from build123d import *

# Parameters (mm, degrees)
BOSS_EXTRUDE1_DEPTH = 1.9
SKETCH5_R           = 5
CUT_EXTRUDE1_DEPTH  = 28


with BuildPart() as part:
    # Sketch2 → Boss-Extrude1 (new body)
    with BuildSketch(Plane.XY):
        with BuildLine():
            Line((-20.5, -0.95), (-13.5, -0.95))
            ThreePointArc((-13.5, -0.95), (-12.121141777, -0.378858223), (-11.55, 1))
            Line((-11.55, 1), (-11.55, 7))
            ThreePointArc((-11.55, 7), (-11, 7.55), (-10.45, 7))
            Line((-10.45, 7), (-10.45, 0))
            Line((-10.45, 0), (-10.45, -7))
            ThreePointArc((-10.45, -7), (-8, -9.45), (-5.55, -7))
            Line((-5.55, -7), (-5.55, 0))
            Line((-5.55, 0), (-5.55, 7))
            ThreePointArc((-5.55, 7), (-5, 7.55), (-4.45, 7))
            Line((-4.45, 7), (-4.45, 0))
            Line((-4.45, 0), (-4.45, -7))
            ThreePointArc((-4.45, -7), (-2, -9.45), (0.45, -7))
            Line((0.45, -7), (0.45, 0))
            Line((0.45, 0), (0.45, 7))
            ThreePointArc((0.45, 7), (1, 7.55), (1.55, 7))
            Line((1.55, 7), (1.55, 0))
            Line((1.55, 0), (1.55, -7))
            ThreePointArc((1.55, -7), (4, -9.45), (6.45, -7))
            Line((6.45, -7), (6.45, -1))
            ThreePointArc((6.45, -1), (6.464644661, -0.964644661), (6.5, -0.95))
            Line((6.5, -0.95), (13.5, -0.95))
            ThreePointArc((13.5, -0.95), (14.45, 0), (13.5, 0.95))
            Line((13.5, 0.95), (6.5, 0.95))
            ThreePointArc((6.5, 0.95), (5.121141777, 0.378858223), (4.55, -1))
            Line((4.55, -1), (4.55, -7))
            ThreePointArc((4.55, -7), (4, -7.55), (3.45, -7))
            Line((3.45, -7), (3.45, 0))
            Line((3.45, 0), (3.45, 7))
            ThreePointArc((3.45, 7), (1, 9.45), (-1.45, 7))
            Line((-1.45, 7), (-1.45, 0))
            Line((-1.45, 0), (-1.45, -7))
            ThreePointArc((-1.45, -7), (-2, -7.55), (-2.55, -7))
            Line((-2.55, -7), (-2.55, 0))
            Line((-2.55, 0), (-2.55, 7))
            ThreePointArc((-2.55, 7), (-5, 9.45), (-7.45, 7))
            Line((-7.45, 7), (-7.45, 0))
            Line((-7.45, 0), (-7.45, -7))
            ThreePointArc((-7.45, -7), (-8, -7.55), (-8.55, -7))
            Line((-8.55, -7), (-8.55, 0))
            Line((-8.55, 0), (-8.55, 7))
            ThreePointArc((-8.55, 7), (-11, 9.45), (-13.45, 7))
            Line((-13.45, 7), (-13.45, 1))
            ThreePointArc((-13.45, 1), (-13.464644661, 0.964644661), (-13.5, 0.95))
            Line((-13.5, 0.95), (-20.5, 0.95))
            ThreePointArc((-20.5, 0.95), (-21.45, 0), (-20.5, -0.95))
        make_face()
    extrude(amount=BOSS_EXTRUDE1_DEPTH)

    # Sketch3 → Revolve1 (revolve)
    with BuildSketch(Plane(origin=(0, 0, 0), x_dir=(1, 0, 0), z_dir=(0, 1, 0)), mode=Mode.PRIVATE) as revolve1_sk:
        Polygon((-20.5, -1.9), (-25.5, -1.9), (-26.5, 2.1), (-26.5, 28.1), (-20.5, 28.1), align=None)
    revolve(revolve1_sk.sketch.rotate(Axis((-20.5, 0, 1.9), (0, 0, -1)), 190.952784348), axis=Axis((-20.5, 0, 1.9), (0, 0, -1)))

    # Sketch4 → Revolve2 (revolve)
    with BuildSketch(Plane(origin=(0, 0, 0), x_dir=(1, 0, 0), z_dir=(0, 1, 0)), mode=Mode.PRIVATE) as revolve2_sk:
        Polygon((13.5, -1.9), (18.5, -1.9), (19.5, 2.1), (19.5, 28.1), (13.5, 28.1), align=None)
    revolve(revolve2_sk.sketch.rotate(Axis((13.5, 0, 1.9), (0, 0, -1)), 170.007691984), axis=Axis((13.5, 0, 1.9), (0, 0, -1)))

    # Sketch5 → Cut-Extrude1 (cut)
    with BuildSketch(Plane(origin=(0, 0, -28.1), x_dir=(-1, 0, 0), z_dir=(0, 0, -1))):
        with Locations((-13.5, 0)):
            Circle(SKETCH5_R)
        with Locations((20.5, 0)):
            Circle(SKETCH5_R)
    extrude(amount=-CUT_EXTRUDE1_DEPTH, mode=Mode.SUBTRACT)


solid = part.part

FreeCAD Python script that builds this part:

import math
import FreeCAD as App
import Part
import Sketcher

V = App.Vector


def add_polygon(sketch, points):
    """Adds a closed chain of lines whose ends are joined by coincident constraints."""
    first, n = sketch.GeometryCount, len(points)
    for a, b in zip(points, points[1:] + points[:1]):
        sketch.addGeometry(Part.LineSegment(App.Vector(*a, 0), App.Vector(*b, 0)), False)
    for i in range(n):
        sketch.addConstraint(Sketcher.Constraint("Coincident", first + i, 2, first + (i + 1) % n, 1))

doc = App.newDocument("Part")
body = doc.addObject("PartDesign::Body", "Body")

# Sketch on XY plane
sketch1 = doc.addObject("Sketcher::SketchObject", "Sketch")
body.addObject(sketch1)
sketch1.AttachmentSupport = (doc.XY_Plane, [""])
sketch1.MapMode = "FlatFace"
sketch1.addGeometry(Part.LineSegment(V(-20.5, -0.95, 0), V(-13.5, -0.95, 0)), False)
sketch1.addGeometry(Part.ArcOfCircle(Part.Circle(V(-13.5, 1, 0), V(0, 0, 1), 1.95), math.radians(-90), math.radians(0)), False)
sketch1.addGeometry(Part.LineSegment(V(-11.55, 1, 0), V(-11.55, 7, 0)), False)
sketch1.addGeometry(Part.ArcOfCircle(Part.Circle(V(-11, 7, 0), V(0, 0, 1), 0.55), math.radians(0), math.radians(180)), False)
sketch1.addGeometry(Part.LineSegment(V(-10.45, 7, 0), V(-10.45, -7, 0)), False)
sketch1.addGeometry(Part.ArcOfCircle(Part.Circle(V(-8, -7, 0), V(0, 0, 1), 2.45), math.radians(180), math.radians(360)), False)
sketch1.addGeometry(Part.LineSegment(V(-5.55, -7, 0), V(-5.55, 7, 0)), False)
sketch1.addGeometry(Part.ArcOfCircle(Part.Circle(V(-5, 7, 0), V(0, 0, 1), 0.55), math.radians(0), math.radians(180)), False)
sketch1.addGeometry(Part.LineSegment(V(-4.45, 7, 0), V(-4.45, -7, 0)), False)
sketch1.addGeometry(Part.ArcOfCircle(Part.Circle(V(-2, -7, 0), V(0, 0, 1), 2.45), math.radians(180), math.radians(360)), False)
sketch1.addGeometry(Part.LineSegment(V(0.45, -7, 0), V(0.45, 7, 0)), False)
sketch1.addGeometry(Part.ArcOfCircle(Part.Circle(V(1, 7, 0), V(0, 0, 1), 0.55), math.radians(0), math.radians(180)), False)
sketch1.addGeometry(Part.LineSegment(V(1.55, 7, 0), V(1.55, -7, 0)), False)
sketch1.addGeometry(Part.ArcOfCircle(Part.Circle(V(4, -7, 0), V(0, 0, 1), 2.45), math.radians(180), math.radians(360)), False)
sketch1.addGeometry(Part.LineSegment(V(6.45, -7, 0), V(6.45, -1, 0)), False)
sketch1.addGeometry(Part.ArcOfCircle(Part.Circle(V(6.5, -1, 0), V(0, 0, 1), 0.05), math.radians(90), math.radians(180)), False)
sketch1.addGeometry(Part.LineSegment(V(6.5, -0.95, 0), V(13.5, -0.95, 0)), False)
sketch1.addGeometry(Part.ArcOfCircle(Part.Circle(V(13.5, 0, 0), V(0, 0, 1), 0.95), math.radians(-90), math.radians(90)), False)
sketch1.addGeometry(Part.LineSegment(V(13.5, 0.95, 0), V(6.5, 0.95, 0)), False)
sketch1.addGeometry(Part.ArcOfCircle(Part.Circle(V(6.5, -1, 0), V(0, 0, 1), 1.95), math.radians(90), math.radians(180)), False)
sketch1.addGeometry(Part.LineSegment(V(4.55, -1, 0), V(4.55, -7, 0)), False)
sketch1.addGeometry(Part.ArcOfCircle(Part.Circle(V(4, -7, 0), V(0, 0, 1), 0.55), math.radians(180), math.radians(360)), False)
sketch1.addGeometry(Part.LineSegment(V(3.45, -7, 0), V(3.45, 7, 0)), False)
sketch1.addGeometry(Part.ArcOfCircle(Part.Circle(V(1, 7, 0), V(0, 0, 1), 2.45), math.radians(0), math.radians(180)), False)
sketch1.addGeometry(Part.LineSegment(V(-1.45, 7, 0), V(-1.45, -7, 0)), False)
sketch1.addGeometry(Part.ArcOfCircle(Part.Circle(V(-2, -7, 0), V(0, 0, 1), 0.55), math.radians(180), math.radians(360)), False)
sketch1.addGeometry(Part.LineSegment(V(-2.55, -7, 0), V(-2.55, 7, 0)), False)
sketch1.addGeometry(Part.ArcOfCircle(Part.Circle(V(-5, 7, 0), V(0, 0, 1), 2.45), math.radians(0), math.radians(180)), False)
sketch1.addGeometry(Part.LineSegment(V(-7.45, 7, 0), V(-7.45, -7, 0)), False)
sketch1.addGeometry(Part.ArcOfCircle(Part.Circle(V(-8, -7, 0), V(0, 0, 1), 0.55), math.radians(180), math.radians(360)), False)
sketch1.addGeometry(Part.LineSegment(V(-8.55, -7, 0), V(-8.55, 7, 0)), False)
sketch1.addGeometry(Part.ArcOfCircle(Part.Circle(V(-11, 7, 0), V(0, 0, 1), 2.45), math.radians(0), math.radians(180)), False)
sketch1.addGeometry(Part.LineSegment(V(-13.45, 7, 0), V(-13.45, 1, 0)), False)
sketch1.addGeometry(Part.ArcOfCircle(Part.Circle(V(-13.5, 1, 0), V(0, 0, 1), 0.05), math.radians(-90), math.radians(0)), False)
sketch1.addGeometry(Part.LineSegment(V(-13.5, 0.95, 0), V(-20.5, 0.95, 0)), False)
sketch1.addGeometry(Part.ArcOfCircle(Part.Circle(V(-20.5, 0, 0), V(0, 0, 1), 0.95), math.radians(90), math.radians(270)), False)
sketch1.addConstraint(Sketcher.Constraint("Tangent", 0, 2, 1, 1))
sketch1.addConstraint(Sketcher.Constraint("Tangent", 1, 2, 2, 1))
sketch1.addConstraint(Sketcher.Constraint("Tangent", 2, 2, 3, 2))
sketch1.addConstraint(Sketcher.Constraint("Tangent", 3, 1, 4, 1))
sketch1.addConstraint(Sketcher.Constraint("Tangent", 4, 2, 5, 1))
sketch1.addConstraint(Sketcher.Constraint("Tangent", 5, 2, 6, 1))
sketch1.addConstraint(Sketcher.Constraint("Tangent", 6, 2, 7, 2))
sketch1.addConstraint(Sketcher.Constraint("Tangent", 7, 1, 8, 1))
sketch1.addConstraint(Sketcher.Constraint("Tangent", 8, 2, 9, 1))
sketch1.addConstraint(Sketcher.Constraint("Tangent", 9, 2, 10, 1))
sketch1.addConstraint(Sketcher.Constraint("Tangent", 10, 2, 11, 2))
sketch1.addConstraint(Sketcher.Constraint("Tangent", 11, 1, 12, 1))
sketch1.addConstraint(Sketcher.Constraint("Tangent", 12, 2, 13, 1))
sketch1.addConstraint(Sketcher.Constraint("Tangent", 13, 2, 14, 1))
sketch1.addConstraint(Sketcher.Constraint("Tangent", 14, 2, 15, 2))
sketch1.addConstraint(Sketcher.Constraint("Tangent", 15, 1, 16, 1))
sketch1.addConstraint(Sketcher.Constraint("Tangent", 16, 2, 17, 1))
sketch1.addConstraint(Sketcher.Constraint("Tangent", 17, 2, 18, 1))
sketch1.addConstraint(Sketcher.Constraint("Tangent", 18, 2, 19, 1))
sketch1.addConstraint(Sketcher.Constraint("Tangent", 19, 2, 20, 1))
sketch1.addConstraint(Sketcher.Constraint("Tangent", 20, 2, 21, 2))
sketch1.addConstraint(Sketcher.Constraint("Tangent", 21, 1, 22, 1))
sketch1.addConstraint(Sketcher.Constraint("Tangent", 22, 2, 23, 1))
sketch1.addConstraint(Sketcher.Constraint("Tangent", 23, 2, 24, 1))
sketch1.addConstraint(Sketcher.Constraint("Tangent", 24, 2, 25, 2))
sketch1.addConstraint(Sketcher.Constraint("Tangent", 25, 1, 26, 1))
sketch1.addConstraint(Sketcher.Constraint("Tangent", 26, 2, 27, 1))
sketch1.addConstraint(Sketcher.Constraint("Tangent", 27, 2, 28, 1))
sketch1.addConstraint(Sketcher.Constraint("Tangent", 28, 2, 29, 2))
sketch1.addConstraint(Sketcher.Constraint("Tangent", 29, 1, 30, 1))
sketch1.addConstraint(Sketcher.Constraint("Tangent", 30, 2, 31, 1))
sketch1.addConstraint(Sketcher.Constraint("Tangent", 31, 2, 32, 1))
sketch1.addConstraint(Sketcher.Constraint("Tangent", 32, 2, 33, 2))
sketch1.addConstraint(Sketcher.Constraint("Tangent", 33, 1, 34, 1))
sketch1.addConstraint(Sketcher.Constraint("Tangent", 34, 2, 35, 1))
sketch1.addConstraint(Sketcher.Constraint("Tangent", 35, 2, 0, 1))
sketch1.addConstraint(Sketcher.Constraint("Horizontal", 0))
sketch1.addConstraint(Sketcher.Constraint("Vertical", 2))
sketch1.addConstraint(Sketcher.Constraint("Vertical", 4))
sketch1.addConstraint(Sketcher.Constraint("Vertical", 6))
sketch1.addConstraint(Sketcher.Constraint("Vertical", 8))
sketch1.addConstraint(Sketcher.Constraint("Vertical", 10))
sketch1.addConstraint(Sketcher.Constraint("Vertical", 12))
sketch1.addConstraint(Sketcher.Constraint("Vertical", 14))
sketch1.addConstraint(Sketcher.Constraint("Horizontal", 16))
sketch1.addConstraint(Sketcher.Constraint("Horizontal", 18))
sketch1.addConstraint(Sketcher.Constraint("Vertical", 20))
sketch1.addConstraint(Sketcher.Constraint("Vertical", 22))
sketch1.addConstraint(Sketcher.Constraint("Vertical", 24))
sketch1.addConstraint(Sketcher.Constraint("Vertical", 26))
sketch1.addConstraint(Sketcher.Constraint("Vertical", 28))
sketch1.addConstraint(Sketcher.Constraint("Vertical", 30))
sketch1.addConstraint(Sketcher.Constraint("Vertical", 32))
sketch1.addConstraint(Sketcher.Constraint("Horizontal", 34))
sketch1.addConstraint(Sketcher.Constraint("Coincident", 19, 3, 15, 3))
sketch1.addConstraint(Sketcher.Constraint("Coincident", 21, 3, 13, 3))
sketch1.addConstraint(Sketcher.Constraint("Coincident", 23, 3, 11, 3))
sketch1.addConstraint(Sketcher.Constraint("Coincident", 25, 3, 9, 3))
sketch1.addConstraint(Sketcher.Constraint("Coincident", 27, 3, 7, 3))
sketch1.addConstraint(Sketcher.Constraint("Coincident", 29, 3, 5, 3))
sketch1.addConstraint(Sketcher.Constraint("Coincident", 31, 3, 3, 3))
sketch1.addConstraint(Sketcher.Constraint("Coincident", 33, 3, 1, 3))
sketch1.addConstraint(Sketcher.Constraint("Equal", 3, 7))
sketch1.addConstraint(Sketcher.Constraint("Equal", 5, 9))
sketch1.addConstraint(Sketcher.Constraint("Equal", 7, 11))
sketch1.addConstraint(Sketcher.Constraint("Equal", 9, 13))
sketch1.addConstraint(Sketcher.Constraint("Equal", 1, 19))
sketch1.addConstraint(Sketcher.Constraint("Equal", 11, 21))
sketch1.addConstraint(Sketcher.Constraint("Symmetric", 0, 2, 17, 2, -1, 1))
sketch1.addConstraint(Sketcher.Constraint("PointOnObject", 17, 3, -1))
sketch1.addConstraint(Sketcher.Constraint("Horizontal", 3, 3, 7, 3))
sketch1.addConstraint(Sketcher.Constraint("Horizontal", 5, 3, 9, 3))
sketch1.addConstraint(Sketcher.Constraint("Horizontal", 7, 3, 11, 3))
sketch1.addConstraint(Sketcher.Constraint("Horizontal", 9, 3, 13, 3))
sketch1.addConstraint(Sketcher.Constraint("Equal", 0, 16))
sketch1.addConstraint(Sketcher.Constraint("Equal", 2, 14))
sketch1.addConstraint(Sketcher.Constraint("DistanceX", 0, 1, 0, 2, 7.0))
sketch1.addConstraint(Sketcher.Constraint("DistanceY", 2, 1, 2, 2, 6.0))
sketch1.addConstraint(Sketcher.Constraint("DistanceY", 4, 2, 4, 1, 14.0))
sketch1.addConstraint(Sketcher.Constraint("Radius", 1, 1.95))
sketch1.addConstraint(Sketcher.Constraint("Radius", 3, 0.55))
pad1 = doc.addObject("PartDesign::Pad", "Pad")
body.addObject(pad1)
pad1.Profile = sketch1
pad1.Length = 1.9

# Sketch on XZ plane
sketch2 = doc.addObject("Sketcher::SketchObject", "Sketch001")
body.addObject(sketch2)
sketch2.AttachmentSupport = (doc.XZ_Plane, [""])
sketch2.MapMode = "FlatFace"
add_polygon(sketch2, [(-25.5, 1.9), (-20.5, 1.9), (-20.5, -28.1), (-26.5, -28.1), (-26.5, -2.1)])  # lines 0-4
sketch2.addGeometry(Part.LineSegment(V(-20.5, 1.9, 0), V(-20.5, -28.1, 0)), True)  # axis
sketch2.addConstraint(Sketcher.Constraint("Horizontal", 0))
sketch2.addConstraint(Sketcher.Constraint("Vertical", 1))
sketch2.addConstraint(Sketcher.Constraint("Horizontal", 2))
sketch2.addConstraint(Sketcher.Constraint("Vertical", 3))
sketch2.addConstraint(Sketcher.Constraint("Vertical", 5))
sketch2.addConstraint(Sketcher.Constraint("Coincident", 5, 1, 0, 2))
sketch2.addConstraint(Sketcher.Constraint("Horizontal", 2, 2, 5, 2))
sketch2.addConstraint(Sketcher.Constraint("DistanceX", 0, 1, 0, 2, 5.0))
sketch2.addConstraint(Sketcher.Constraint("DistanceX", 2, 2, 2, 1, 6.0))
sketch2.addConstraint(Sketcher.Constraint("DistanceY", 1, 2, 1, 1, 30.0))
sketch2.addConstraint(Sketcher.Constraint("DistanceY", 3, 1, 3, 2, 26.0))
sketch2.addConstraint(Sketcher.Constraint("DistanceX", 0, 2, -1, 1, 20.5))
sketch2.addConstraint(Sketcher.Constraint("DistanceY", -1, 1, 0, 2, 1.9))
revolution = doc.addObject("PartDesign::Revolution", "Revolution")
body.addObject(revolution)
revolution.Profile = sketch2
revolution.ReferenceAxis = (sketch2, ["Axis0"])
revolution.Angle = 360

# Sketch on XZ plane
sketch3 = doc.addObject("Sketcher::SketchObject", "Sketch002")
body.addObject(sketch3)
sketch3.AttachmentSupport = (doc.XZ_Plane, [""])
sketch3.MapMode = "FlatFace"
add_polygon(sketch3, [(13.5, 1.9), (18.5, 1.9), (19.5, -2.1), (19.5, -28.1), (13.5, -28.1)])  # lines 0-4
sketch3.addGeometry(Part.LineSegment(V(13.5, 1.9, 0), V(13.5, -28.1, 0)), True)  # axis
sketch3.addConstraint(Sketcher.Constraint("Horizontal", 0))
sketch3.addConstraint(Sketcher.Constraint("Vertical", 2))
sketch3.addConstraint(Sketcher.Constraint("Horizontal", 3))
sketch3.addConstraint(Sketcher.Constraint("Vertical", 4))
sketch3.addConstraint(Sketcher.Constraint("Vertical", 5))
sketch3.addConstraint(Sketcher.Constraint("Coincident", 5, 1, 4, 2))
sketch3.addConstraint(Sketcher.Constraint("Horizontal", 2, 2, 5, 2))
sketch3.addConstraint(Sketcher.Constraint("DistanceX", 0, 1, 0, 2, 5.0))
sketch3.addConstraint(Sketcher.Constraint("DistanceX", 3, 2, 3, 1, 6.0))
sketch3.addConstraint(Sketcher.Constraint("DistanceY", 2, 2, 2, 1, 26.0))
sketch3.addConstraint(Sketcher.Constraint("DistanceY", 4, 1, 4, 2, 30.0))
sketch3.addConstraint(Sketcher.Constraint("DistanceX", -1, 1, 0, 2, 18.5))
sketch3.addConstraint(Sketcher.Constraint("DistanceY", -1, 1, 0, 2, 1.9))
revolution2 = doc.addObject("PartDesign::Revolution", "Revolution001")
body.addObject(revolution2)
revolution2.Profile = sketch3
revolution2.ReferenceAxis = (sketch3, ["Axis0"])
revolution2.Angle = 360

# Sketch on XY plane
sketch4 = doc.addObject("Sketcher::SketchObject", "Sketch003")
body.addObject(sketch4)
sketch4.AttachmentSupport = (doc.XY_Plane, [""])
sketch4.MapMode = "FlatFace"
sketch4.AttachmentOffset = App.Placement(V(0, 0, -28.1), App.Rotation())
sketch4.addGeometry(Part.Circle(V(14, 0, 0), V(0, 0, 1), 5), False)
sketch4.addGeometry(Part.Circle(V(-20, 0, 0), V(0, 0, 1), 5), False)
sketch4.addConstraint(Sketcher.Constraint("Equal", 0, 1))
sketch4.addConstraint(Sketcher.Constraint("PointOnObject", 0, 3, -1))
sketch4.addConstraint(Sketcher.Constraint("PointOnObject", 1, 3, -1))
sketch4.addConstraint(Sketcher.Constraint("Diameter", 0, 10.0))
sketch4.addConstraint(Sketcher.Constraint("DistanceX", 1, 3, 0, 3, 34.0))
sketch4.addConstraint(Sketcher.Constraint("DistanceX", -1, 1, 0, 3, 13.5))
pocket1 = doc.addObject("PartDesign::Pocket", "Pocket")
body.addObject(pocket1)
pocket1.Profile = sketch4
pocket1.Length = 28
pocket1.Reversed = True

doc.recompute()
